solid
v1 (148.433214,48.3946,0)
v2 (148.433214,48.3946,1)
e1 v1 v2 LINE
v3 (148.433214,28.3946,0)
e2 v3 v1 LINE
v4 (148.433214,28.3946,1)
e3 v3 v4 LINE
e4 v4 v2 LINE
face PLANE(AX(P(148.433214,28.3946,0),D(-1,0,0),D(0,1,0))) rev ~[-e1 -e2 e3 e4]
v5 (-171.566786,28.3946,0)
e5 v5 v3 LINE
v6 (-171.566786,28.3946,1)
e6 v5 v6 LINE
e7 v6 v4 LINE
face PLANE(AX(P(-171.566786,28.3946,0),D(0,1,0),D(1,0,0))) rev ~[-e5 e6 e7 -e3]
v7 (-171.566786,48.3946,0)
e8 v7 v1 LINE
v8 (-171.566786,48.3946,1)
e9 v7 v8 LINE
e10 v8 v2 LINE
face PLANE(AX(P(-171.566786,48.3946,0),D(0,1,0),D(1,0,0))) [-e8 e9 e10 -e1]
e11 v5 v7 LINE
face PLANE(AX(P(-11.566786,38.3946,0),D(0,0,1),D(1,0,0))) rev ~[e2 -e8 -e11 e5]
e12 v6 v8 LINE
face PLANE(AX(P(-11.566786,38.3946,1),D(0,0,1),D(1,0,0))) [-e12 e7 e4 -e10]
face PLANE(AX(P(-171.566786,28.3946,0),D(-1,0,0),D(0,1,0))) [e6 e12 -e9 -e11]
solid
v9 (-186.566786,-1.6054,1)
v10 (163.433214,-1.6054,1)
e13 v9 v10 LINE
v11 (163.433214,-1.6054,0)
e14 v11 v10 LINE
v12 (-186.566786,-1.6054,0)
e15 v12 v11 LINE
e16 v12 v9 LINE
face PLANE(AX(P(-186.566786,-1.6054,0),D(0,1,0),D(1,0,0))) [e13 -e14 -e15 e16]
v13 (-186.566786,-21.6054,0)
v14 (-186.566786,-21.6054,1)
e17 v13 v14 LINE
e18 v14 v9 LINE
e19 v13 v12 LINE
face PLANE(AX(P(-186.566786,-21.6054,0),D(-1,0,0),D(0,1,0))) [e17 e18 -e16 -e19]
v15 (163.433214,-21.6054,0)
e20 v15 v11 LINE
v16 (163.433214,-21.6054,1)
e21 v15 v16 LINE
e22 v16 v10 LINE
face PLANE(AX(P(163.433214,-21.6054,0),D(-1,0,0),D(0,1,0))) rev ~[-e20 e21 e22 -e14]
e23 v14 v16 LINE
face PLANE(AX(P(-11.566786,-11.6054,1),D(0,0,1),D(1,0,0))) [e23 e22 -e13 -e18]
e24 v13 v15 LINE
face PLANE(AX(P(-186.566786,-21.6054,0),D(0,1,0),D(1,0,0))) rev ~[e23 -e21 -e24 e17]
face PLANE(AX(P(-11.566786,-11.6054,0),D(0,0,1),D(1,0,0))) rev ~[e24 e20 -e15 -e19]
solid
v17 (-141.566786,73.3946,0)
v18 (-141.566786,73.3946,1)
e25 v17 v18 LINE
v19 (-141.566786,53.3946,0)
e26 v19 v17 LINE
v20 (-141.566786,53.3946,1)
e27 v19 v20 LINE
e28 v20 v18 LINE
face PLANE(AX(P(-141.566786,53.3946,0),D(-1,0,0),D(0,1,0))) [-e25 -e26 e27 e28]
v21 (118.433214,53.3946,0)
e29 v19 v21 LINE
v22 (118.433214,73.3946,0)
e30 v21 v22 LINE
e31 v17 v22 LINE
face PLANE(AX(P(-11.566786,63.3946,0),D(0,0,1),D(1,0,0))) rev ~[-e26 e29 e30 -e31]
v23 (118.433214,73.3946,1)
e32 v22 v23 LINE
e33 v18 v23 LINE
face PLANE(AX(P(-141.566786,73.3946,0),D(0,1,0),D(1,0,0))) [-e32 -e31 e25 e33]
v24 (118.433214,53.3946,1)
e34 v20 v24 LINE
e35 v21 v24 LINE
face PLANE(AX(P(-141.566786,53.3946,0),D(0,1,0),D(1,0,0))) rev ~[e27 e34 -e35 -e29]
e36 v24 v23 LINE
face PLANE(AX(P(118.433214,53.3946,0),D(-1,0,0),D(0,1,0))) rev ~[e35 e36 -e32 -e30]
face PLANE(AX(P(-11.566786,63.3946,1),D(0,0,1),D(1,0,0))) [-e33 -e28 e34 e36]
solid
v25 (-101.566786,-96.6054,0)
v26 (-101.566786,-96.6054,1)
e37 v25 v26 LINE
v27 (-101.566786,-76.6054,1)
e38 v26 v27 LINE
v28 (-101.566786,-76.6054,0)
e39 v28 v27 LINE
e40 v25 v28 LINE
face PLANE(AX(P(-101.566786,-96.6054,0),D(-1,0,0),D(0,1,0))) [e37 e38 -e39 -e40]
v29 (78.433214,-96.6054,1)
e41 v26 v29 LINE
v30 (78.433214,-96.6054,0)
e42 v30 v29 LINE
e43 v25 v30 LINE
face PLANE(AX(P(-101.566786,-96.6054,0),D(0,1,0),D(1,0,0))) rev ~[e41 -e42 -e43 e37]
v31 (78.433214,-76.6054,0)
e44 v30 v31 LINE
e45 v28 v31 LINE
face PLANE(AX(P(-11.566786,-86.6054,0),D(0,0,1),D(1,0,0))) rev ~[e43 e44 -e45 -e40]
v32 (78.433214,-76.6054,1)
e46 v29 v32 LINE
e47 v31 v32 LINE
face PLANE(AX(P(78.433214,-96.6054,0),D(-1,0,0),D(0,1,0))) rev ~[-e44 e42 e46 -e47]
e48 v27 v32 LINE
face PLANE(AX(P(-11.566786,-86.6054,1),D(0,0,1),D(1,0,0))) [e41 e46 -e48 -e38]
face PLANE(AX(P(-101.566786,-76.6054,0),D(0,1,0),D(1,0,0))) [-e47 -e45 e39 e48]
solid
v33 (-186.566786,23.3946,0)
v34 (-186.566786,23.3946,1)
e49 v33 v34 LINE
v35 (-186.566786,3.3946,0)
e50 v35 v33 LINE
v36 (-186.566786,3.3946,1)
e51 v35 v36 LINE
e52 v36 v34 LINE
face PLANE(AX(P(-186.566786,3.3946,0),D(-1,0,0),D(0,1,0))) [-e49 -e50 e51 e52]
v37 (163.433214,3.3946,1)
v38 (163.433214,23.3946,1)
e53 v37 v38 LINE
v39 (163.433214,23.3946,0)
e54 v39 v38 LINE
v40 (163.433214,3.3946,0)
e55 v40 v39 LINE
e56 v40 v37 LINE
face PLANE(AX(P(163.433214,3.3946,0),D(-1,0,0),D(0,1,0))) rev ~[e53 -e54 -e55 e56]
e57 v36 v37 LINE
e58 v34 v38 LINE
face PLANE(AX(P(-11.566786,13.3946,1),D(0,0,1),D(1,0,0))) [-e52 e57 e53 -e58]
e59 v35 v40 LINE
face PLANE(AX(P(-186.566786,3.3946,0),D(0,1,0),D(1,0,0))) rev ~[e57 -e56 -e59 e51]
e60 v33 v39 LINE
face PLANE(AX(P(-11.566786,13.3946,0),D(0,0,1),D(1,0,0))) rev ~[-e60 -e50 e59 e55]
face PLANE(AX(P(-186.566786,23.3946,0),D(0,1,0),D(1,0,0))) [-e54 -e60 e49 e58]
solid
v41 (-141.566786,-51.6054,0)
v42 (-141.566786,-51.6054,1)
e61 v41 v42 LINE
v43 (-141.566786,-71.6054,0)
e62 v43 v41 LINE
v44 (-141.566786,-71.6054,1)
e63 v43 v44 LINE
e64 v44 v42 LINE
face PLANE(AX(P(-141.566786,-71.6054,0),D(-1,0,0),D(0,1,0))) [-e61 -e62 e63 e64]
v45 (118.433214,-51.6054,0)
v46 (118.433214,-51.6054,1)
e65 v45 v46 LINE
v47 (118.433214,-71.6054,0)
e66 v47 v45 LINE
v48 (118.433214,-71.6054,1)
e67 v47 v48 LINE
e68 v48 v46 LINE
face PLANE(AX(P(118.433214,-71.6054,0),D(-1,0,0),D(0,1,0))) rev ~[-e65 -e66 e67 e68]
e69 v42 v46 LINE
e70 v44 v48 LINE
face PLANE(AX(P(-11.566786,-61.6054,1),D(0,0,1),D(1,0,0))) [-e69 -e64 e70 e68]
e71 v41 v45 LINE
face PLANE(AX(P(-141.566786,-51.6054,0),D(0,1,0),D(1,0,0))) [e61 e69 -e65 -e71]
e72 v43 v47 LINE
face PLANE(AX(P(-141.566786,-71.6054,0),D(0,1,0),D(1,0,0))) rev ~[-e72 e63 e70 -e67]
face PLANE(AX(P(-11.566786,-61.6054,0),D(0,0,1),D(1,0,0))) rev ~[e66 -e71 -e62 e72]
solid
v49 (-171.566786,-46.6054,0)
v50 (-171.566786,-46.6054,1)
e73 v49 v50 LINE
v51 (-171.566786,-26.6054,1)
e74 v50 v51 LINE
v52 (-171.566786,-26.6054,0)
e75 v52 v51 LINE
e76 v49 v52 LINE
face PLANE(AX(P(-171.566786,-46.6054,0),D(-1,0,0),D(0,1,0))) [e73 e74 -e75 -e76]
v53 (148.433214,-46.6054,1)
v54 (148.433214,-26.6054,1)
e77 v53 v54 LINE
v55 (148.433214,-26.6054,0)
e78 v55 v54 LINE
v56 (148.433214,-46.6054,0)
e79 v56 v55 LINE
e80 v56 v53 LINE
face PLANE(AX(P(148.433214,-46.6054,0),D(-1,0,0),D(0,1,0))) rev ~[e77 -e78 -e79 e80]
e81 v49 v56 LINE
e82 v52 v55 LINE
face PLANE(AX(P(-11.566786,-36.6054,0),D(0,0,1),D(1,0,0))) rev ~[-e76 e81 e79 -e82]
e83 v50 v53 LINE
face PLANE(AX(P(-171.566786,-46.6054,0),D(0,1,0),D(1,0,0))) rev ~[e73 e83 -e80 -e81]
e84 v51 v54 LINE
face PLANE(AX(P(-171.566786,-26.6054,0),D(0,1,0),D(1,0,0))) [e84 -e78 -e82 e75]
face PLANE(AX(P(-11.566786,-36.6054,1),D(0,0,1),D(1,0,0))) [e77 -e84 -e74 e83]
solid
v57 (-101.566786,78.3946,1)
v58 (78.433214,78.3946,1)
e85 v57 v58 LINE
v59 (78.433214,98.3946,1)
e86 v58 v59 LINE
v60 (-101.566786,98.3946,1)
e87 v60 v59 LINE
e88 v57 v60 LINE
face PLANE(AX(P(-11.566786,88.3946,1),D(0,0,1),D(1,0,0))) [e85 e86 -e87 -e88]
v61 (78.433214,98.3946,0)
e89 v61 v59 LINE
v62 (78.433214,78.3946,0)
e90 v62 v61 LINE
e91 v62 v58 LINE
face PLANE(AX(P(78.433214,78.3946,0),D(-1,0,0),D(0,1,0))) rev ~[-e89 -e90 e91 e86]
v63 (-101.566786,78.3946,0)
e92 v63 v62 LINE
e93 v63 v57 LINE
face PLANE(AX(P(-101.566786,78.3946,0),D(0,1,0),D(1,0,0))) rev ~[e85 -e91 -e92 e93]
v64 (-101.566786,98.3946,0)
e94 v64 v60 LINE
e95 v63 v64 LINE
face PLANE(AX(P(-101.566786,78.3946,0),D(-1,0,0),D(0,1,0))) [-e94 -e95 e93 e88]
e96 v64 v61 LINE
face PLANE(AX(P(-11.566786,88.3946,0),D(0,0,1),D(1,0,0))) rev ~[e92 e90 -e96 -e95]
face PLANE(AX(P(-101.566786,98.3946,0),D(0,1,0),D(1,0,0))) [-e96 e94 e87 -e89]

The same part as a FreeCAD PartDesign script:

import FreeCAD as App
import Part
import Sketcher
from FreeCAD import Vector
Q = App.Units.Quantity

doc = App.newDocument("Part")
body = doc.addObject("PartDesign::Body", "Body")

# Sketch on XY plane
sketch1 = body.newObject("Sketcher::SketchObject", "Sketch")
sketch1.AttachmentSupport = (doc.getObject("XY_Plane"), [""])
sketch1.MapMode = "FlatFace"
sketch1.addGeometry(Part.LineSegment(Vector(-186.566786, 23.3946, 0), Vector(-186.566786, 3.3946, 0)), False)
sketch1.addGeometry(Part.LineSegment(Vector(-186.566786, 3.3946, 0), Vector(163.433214, 3.3946, 0)), False)
sketch1.addGeometry(Part.LineSegment(Vector(163.433214, 3.3946, 0), Vector(163.433214, 23.3946, 0)), False)
sketch1.addGeometry(Part.LineSegment(Vector(163.433214, 23.3946, 0), Vector(-186.566786, 23.3946, 0)), False)
sketch1.addConstraint(Sketcher.Constraint("Coincident", 0, 2, 1, 1))
sketch1.addConstraint(Sketcher.Constraint("Coincident", 1, 2, 2, 1))
sketch1.addConstraint(Sketcher.Constraint("Coincident", 2, 2, 3, 1))
sketch1.addConstraint(Sketcher.Constraint("Coincident", 3, 2, 0, 1))
sketch1.addConstraint(Sketcher.Constraint("Vertical", 0))
sketch1.addConstraint(Sketcher.Constraint("Horizontal", 1))
sketch1.addConstraint(Sketcher.Constraint("Vertical", 2))
sketch1.addConstraint(Sketcher.Constraint("Horizontal", 3))
sketch1.addConstraint(Sketcher.Constraint("DistanceX", 1, 1, 1, 2, Q("350 mm")))
sketch1.addConstraint(Sketcher.Constraint("DistanceY", 0, 2, 0, 1, Q("20 mm")))
sketch1.addConstraint(Sketcher.Constraint("DistanceY", -1, 1, 0, 2, Q("3.3946 mm")))
sketch1.addConstraint(Sketcher.Constraint("DistanceX", 0, 2, -1, 1, Q("186.566786 mm")))
pad1 = body.newObject("PartDesign::Pad", "Pad")
pad1.Profile = sketch1
pad1.Length = 1
body2 = doc.addObject("PartDesign::Body", "Body001")

# Sketch on XY plane
sketch2 = body2.newObject("Sketcher::SketchObject", "Sketch001")
sketch2.AttachmentSupport = (doc.getObject("XY_Plane001"), [""])
sketch2.MapMode = "FlatFace"
sketch2.addGeometry(Part.LineSegment(Vector(-171.566786, 48.3946, 0), Vector(-171.566786, 28.3946, 0)), False)
sketch2.addGeometry(Part.LineSegment(Vector(-171.566786, 28.3946, 0), Vector(148.433214, 28.3946, 0)), False)
sketch2.addGeometry(Part.LineSegment(Vector(148.433214, 28.3946, 0), Vector(148.433214, 48.3946, 0)), False)
sketch2.addGeometry(Part.LineSegment(Vector(148.433214, 48.3946, 0), Vector(-171.566786, 48.3946, 0)), False)
sketch2.addConstraint(Sketcher.Constraint("Coincident", 0, 2, 1, 1))
sketch2.addConstraint(Sketcher.Constraint("Coincident", 1, 2, 2, 1))
sketch2.addConstraint(Sketcher.Constraint("Coincident", 2, 2, 3, 1))
sketch2.addConstraint(Sketcher.Constraint("Coincident", 3, 2, 0, 1))
sketch2.addConstraint(Sketcher.Constraint("Vertical", 0))
sketch2.addConstraint(Sketcher.Constraint("Horizontal", 1))
sketch2.addConstraint(Sketcher.Constraint("Vertical", 2))
sketch2.addConstraint(Sketcher.Constraint("Horizontal", 3))
sketch2.addConstraint(Sketcher.Constraint("DistanceX", 1, 1, 1, 2, Q("320 mm")))
sketch2.addConstraint(Sketcher.Constraint("DistanceY", 0, 2, 0, 1, Q("20 mm")))
sketch2.addConstraint(Sketcher.Constraint("DistanceY", -1, 1, 0, 2, Q("28.3946 mm")))
sketch2.addConstraint(Sketcher.Constraint("DistanceX", 0, 2, -1, 1, Q("171.566786 mm")))
pad2 = body2.newObject("PartDesign::Pad", "Pad001")
pad2.Profile = sketch2
pad2.Length = 1
body3 = doc.addObject("PartDesign::Body", "Body002")

# Sketch on XY plane
sketch3 = body3.newObject("Sketcher::SketchObject", "Sketch002")
sketch3.AttachmentSupport = (doc.getObject("XY_Plane002"), [""])
sketch3.MapMode = "FlatFace"
sketch3.addGeometry(Part.LineSegment(Vector(-141.566786, 73.3946, 0), Vector(-141.566786, 53.3946, 0)), False)
sketch3.addGeometry(Part.LineSegment(Vector(-141.566786, 53.3946, 0), Vector(118.433214, 53.3946, 0)), False)
sketch3.addGeometry(Part.LineSegment(Vector(118.433214, 53.3946, 0), Vector(118.433214, 73.3946, 0)), False)
sketch3.addGeometry(Part.LineSegment(Vector(118.433214, 73.3946, 0), Vector(-141.566786, 73.3946, 0)), False)
sketch3.addConstraint(Sketcher.Constraint("Coincident", 0, 2, 1, 1))
sketch3.addConstraint(Sketcher.Constraint("Coincident", 1, 2, 2, 1))
sketch3.addConstraint(Sketcher.Constraint("Coincident", 2, 2, 3, 1))
sketch3.addConstraint(Sketcher.Constraint("Coincident", 3, 2, 0, 1))
sketch3.addConstraint(Sketcher.Constraint("Vertical", 0))
sketch3.addConstraint(Sketcher.Constraint("Horizontal", 1))
sketch3.addConstraint(Sketcher.Constraint("Vertical", 2))
sketch3.addConstraint(Sketcher.Constraint("Horizontal", 3))
sketch3.addConstraint(Sketcher.Constraint("DistanceX", 1, 1, 1, 2, Q("260 mm")))
sketch3.addConstraint(Sketcher.Constraint("DistanceY", 0, 2, 0, 1, Q("20 mm")))
sketch3.addConstraint(Sketcher.Constraint("DistanceY", -1, 1, 0, 2, Q("53.3946 mm")))
sketch3.addConstraint(Sketcher.Constraint("DistanceX", 0, 2, -1, 1, Q("141.566786 mm")))
pad3 = body3.newObject("PartDesign::Pad", "Pad002")
pad3.Profile = sketch3
pad3.Length = 1
body4 = doc.addObject("PartDesign::Body", "Body003")

# Sketch on XY plane
sketch4 = body4.newObject("Sketcher::SketchObject", "Sketch003")
sketch4.AttachmentSupport = (doc.getObject("XY_Plane003"), [""])
sketch4.MapMode = "FlatFace"
sketch4.addGeometry(Part.LineSegment(Vector(-101.566786, 98.3946, 0), Vector(-101.566786, 78.3946, 0)), False)
sketch4.addGeometry(Part.LineSegment(Vector(-101.566786, 78.3946, 0), Vector(78.433214, 78.3946, 0)), False)
sketch4.addGeometry(Part.LineSegment(Vector(78.433214, 78.3946, 0), Vector(78.433214, 98.3946, 0)), False)
sketch4.addGeometry(Part.LineSegment(Vector(78.433214, 98.3946, 0), Vector(-101.566786, 98.3946, 0)), False)
sketch4.addConstraint(Sketcher.Constraint("Coincident", 0, 2, 1, 1))
sketch4.addConstraint(Sketcher.Constraint("Coincident", 1, 2, 2, 1))
sketch4.addConstraint(Sketcher.Constraint("Coincident", 2, 2, 3, 1))
sketch4.addConstraint(Sketcher.Constraint("Coincident", 3, 2, 0, 1))
sketch4.addConstraint(Sketcher.Constraint("Vertical", 0))
sketch4.addConstraint(Sketcher.Constraint("Horizontal", 1))
sketch4.addConstraint(Sketcher.Constraint("Vertical", 2))
sketch4.addConstraint(Sketcher.Constraint("Horizontal", 3))
sketch4.addConstraint(Sketcher.Constraint("DistanceX", 1, 1, 1, 2, Q("180 mm")))
sketch4.addConstraint(Sketcher.Constraint("DistanceY", 0, 2, 0, 1, Q("20 mm")))
sketch4.addConstraint(Sketcher.Constraint("DistanceY", -1, 1, 0, 2, Q("78.3946 mm")))
sketch4.addConstraint(Sketcher.Constraint("DistanceX", 0, 2, -1, 1, Q("101.566786 mm")))
pad4 = body4.newObject("PartDesign::Pad", "Pad003")
pad4.Profile = sketch4
pad4.Length = 1
body5 = doc.addObject("PartDesign::Body", "Body004")

# Sketch on XY plane
sketch5 = body5.newObject("Sketcher::SketchObject", "Sketch004")
sketch5.AttachmentSupport = (doc.getObject("XY_Plane004"), [""])
sketch5.MapMode = "FlatFace"
sketch5.addGeometry(Part.LineSegment(Vector(-186.566786, -1.6054, 0), Vector(-186.566786, -21.6054, 0)), False)
sketch5.addGeometry(Part.LineSegment(Vector(-186.566786, -21.6054, 0), Vector(163.433214, -21.6054, 0)), False)
sketch5.addGeometry(Part.LineSegment(Vector(163.433214, -21.6054, 0), Vector(163.433214, -1.6054, 0)), False)
sketch5.addGeometry(Part.LineSegment(Vector(163.433214, -1.6054, 0), Vector(-186.566786, -1.6054, 0)), False)
sketch5.addConstraint(Sketcher.Constraint("Coincident", 0, 2, 1, 1))
sketch5.addConstraint(Sketcher.Constraint("Coincident", 1, 2, 2, 1))
sketch5.addConstraint(Sketcher.Constraint("Coincident", 2, 2, 3, 1))
sketch5.addConstraint(Sketcher.Constraint("Coincident", 3, 2, 0, 1))
sketch5.addConstraint(Sketcher.Constraint("Vertical", 0))
sketch5.addConstraint(Sketcher.Constraint("Horizontal", 1))
sketch5.addConstraint(Sketcher.Constraint("Vertical", 2))
sketch5.addConstraint(Sketcher.Constraint("Horizontal", 3))
sketch5.addConstraint(Sketcher.Constraint("DistanceX", 1, 1, 1, 2, Q("350 mm")))
sketch5.addConstraint(Sketcher.Constraint("DistanceY", 0, 2, 0, 1, Q("20 mm")))
sketch5.addConstraint(Sketcher.Constraint("DistanceY", 0, 2, -1, 1, Q("21.6054 mm")))
sketch5.addConstraint(Sketcher.Constraint("DistanceX", 0, 2, -1, 1, Q("186.566786 mm")))
pad5 = body5.newObject("PartDesign::Pad", "Pad004")
pad5.Profile = sketch5
pad5.Length = 1
body6 = doc.addObject("PartDesign::Body", "Body005")

# Sketch on XY plane
sketch6 = body6.newObject("Sketcher::SketchObject", "Sketch005")
sketch6.AttachmentSupport = (doc.getObject("XY_Plane005"), [""])
sketch6.MapMode = "FlatFace"
sketch6.addGeometry(Part.LineSegment(Vector(-171.566786, -26.6054, 0), Vector(-171.566786, -46.6054, 0)), False)
sketch6.addGeometry(Part.LineSegment(Vector(-171.566786, -46.6054, 0), Vector(148.433214, -46.6054, 0)), False)
sketch6.addGeometry(Part.LineSegment(Vector(148.433214, -46.6054, 0), Vector(148.433214, -26.6054, 0)), False)
sketch6.addGeometry(Part.LineSegment(Vector(148.433214, -26.6054, 0), Vector(-171.566786, -26.6054, 0)), False)
sketch6.addConstraint(Sketcher.Constraint("Coincident", 0, 2, 1, 1))
sketch6.addConstraint(Sketcher.Constraint("Coincident", 1, 2, 2, 1))
sketch6.addConstraint(Sketcher.Constraint("Coincident", 2, 2, 3, 1))
sketch6.addConstraint(Sketcher.Constraint("Coincident", 3, 2, 0, 1))
sketch6.addConstraint(Sketcher.Constraint("Vertical", 0))
sketch6.addConstraint(Sketcher.Constraint("Horizontal", 1))
sketch6.addConstraint(Sketcher.Constraint("Vertical", 2))
sketch6.addConstraint(Sketcher.Constraint("Horizontal", 3))
sketch6.addConstraint(Sketcher.Constraint("DistanceX", 1, 1, 1, 2, Q("320 mm")))
sketch6.addConstraint(Sketcher.Constraint("DistanceY", 0, 2, 0, 1, Q("20 mm")))
sketch6.addConstraint(Sketcher.Constraint("DistanceY", 0, 2, -1, 1, Q("46.6054 mm")))
sketch6.addConstraint(Sketcher.Constraint("DistanceX", 0, 2, -1, 1, Q("171.566786 mm")))
pad6 = body6.newObject("PartDesign::Pad", "Pad005")
pad6.Profile = sketch6
pad6.Length = 1
body7 = doc.addObject("PartDesign::Body", "Body006")

# Sketch on XY plane
sketch7 = body7.newObject("Sketcher::SketchObject", "Sketch006")
sketch7.AttachmentSupport = (doc.getObject("XY_Plane006"), [""])
sketch7.MapMode = "FlatFace"
sketch7.addGeometry(Part.LineSegment(Vector(-141.566786, -51.6054, 0), Vector(-141.566786, -71.6054, 0)), False)
sketch7.addGeometry(Part.LineSegment(Vector(-141.566786, -71.6054, 0), Vector(118.433214, -71.6054, 0)), False)
sketch7.addGeometry(Part.LineSegment(Vector(118.433214, -71.6054, 0), Vector(118.433214, -51.6054, 0)), False)
sketch7.addGeometry(Part.LineSegment(Vector(118.433214, -51.6054, 0), Vector(-141.566786, -51.6054, 0)), False)
sketch7.addConstraint(Sketcher.Constraint("Coincident", 0, 2, 1, 1))
sketch7.addConstraint(Sketcher.Constraint("Coincident", 1, 2, 2, 1))
sketch7.addConstraint(Sketcher.Constraint("Coincident", 2, 2, 3, 1))
sketch7.addConstraint(Sketcher.Constraint("Coincident", 3, 2, 0, 1))
sketch7.addConstraint(Sketcher.Constraint("Vertical", 0))
sketch7.addConstraint(Sketcher.Constraint("Horizontal", 1))
sketch7.addConstraint(Sketcher.Constraint("Vertical", 2))
sketch7.addConstraint(Sketcher.Constraint("Horizontal", 3))
sketch7.addConstraint(Sketcher.Constraint("DistanceX", 1, 1, 1, 2, Q("260 mm")))
sketch7.addConstraint(Sketcher.Constraint("DistanceY", 0, 2, 0, 1, Q("20 mm")))
sketch7.addConstraint(Sketcher.Constraint("DistanceY", 0, 2, -1, 1, Q("71.6054 mm")))
sketch7.addConstraint(Sketcher.Constraint("DistanceX", 0, 2, -1, 1, Q("141.566786 mm")))
pad7 = body7.newObject("PartDesign::Pad", "Pad006")
pad7.Profile = sketch7
pad7.Length = 1
body8 = doc.addObject("PartDesign::Body", "Body007")

# Sketch on XY plane
sketch8 = body8.newObject("Sketcher::SketchObject", "Sketch007")
sketch8.AttachmentSupport = (doc.getObject("XY_Plane007"), [""])
sketch8.MapMode = "FlatFace"
sketch8.addGeometry(Part.LineSegment(Vector(-101.566786, -76.6054, 0), Vector(-101.566786, -96.6054, 0)), False)
sketch8.addGeometry(Part.LineSegment(Vector(-101.566786, -96.6054, 0), Vector(78.433214, -96.6054, 0)), False)
sketch8.addGeometry(Part.LineSegment(Vector(78.433214, -96.6054, 0), Vector(78.433214, -76.6054, 0)), False)
sketch8.addGeometry(Part.LineSegment(Vector(78.433214, -76.6054, 0), Vector(-101.566786, -76.6054, 0)), False)
sketch8.addConstraint(Sketcher.Constraint("Coincident", 0, 2, 1, 1))
sketch8.addConstraint(Sketcher.Constraint("Coincident", 1, 2, 2, 1))
sketch8.addConstraint(Sketcher.Constraint("Coincident", 2, 2, 3, 1))
sketch8.addConstraint(Sketcher.Constraint("Coincident", 3, 2, 0, 1))
sketch8.addConstraint(Sketcher.Constraint("Vertical", 0))
sketch8.addConstraint(Sketcher.Constraint("Horizontal", 1))
sketch8.addConstraint(Sketcher.Constraint("Vertical", 2))
sketch8.addConstraint(Sketcher.Constraint("Horizontal", 3))
sketch8.addConstraint(Sketcher.Constraint("DistanceX", 1, 1, 1, 2, Q("180 mm")))
sketch8.addConstraint(Sketcher.Constraint("DistanceY", 0, 2, 0, 1, Q("20 mm")))
sketch8.addConstraint(Sketcher.Constraint("DistanceY", 0, 2, -1, 1, Q("96.6054 mm")))
sketch8.addConstraint(Sketcher.Constraint("DistanceX", 0, 2, -1, 1, Q("101.566786 mm")))
pad8 = body8.newObject("PartDesign::Pad", "Pad007")
pad8.Profile = sketch8
pad8.Length = 1

doc.recompute()
